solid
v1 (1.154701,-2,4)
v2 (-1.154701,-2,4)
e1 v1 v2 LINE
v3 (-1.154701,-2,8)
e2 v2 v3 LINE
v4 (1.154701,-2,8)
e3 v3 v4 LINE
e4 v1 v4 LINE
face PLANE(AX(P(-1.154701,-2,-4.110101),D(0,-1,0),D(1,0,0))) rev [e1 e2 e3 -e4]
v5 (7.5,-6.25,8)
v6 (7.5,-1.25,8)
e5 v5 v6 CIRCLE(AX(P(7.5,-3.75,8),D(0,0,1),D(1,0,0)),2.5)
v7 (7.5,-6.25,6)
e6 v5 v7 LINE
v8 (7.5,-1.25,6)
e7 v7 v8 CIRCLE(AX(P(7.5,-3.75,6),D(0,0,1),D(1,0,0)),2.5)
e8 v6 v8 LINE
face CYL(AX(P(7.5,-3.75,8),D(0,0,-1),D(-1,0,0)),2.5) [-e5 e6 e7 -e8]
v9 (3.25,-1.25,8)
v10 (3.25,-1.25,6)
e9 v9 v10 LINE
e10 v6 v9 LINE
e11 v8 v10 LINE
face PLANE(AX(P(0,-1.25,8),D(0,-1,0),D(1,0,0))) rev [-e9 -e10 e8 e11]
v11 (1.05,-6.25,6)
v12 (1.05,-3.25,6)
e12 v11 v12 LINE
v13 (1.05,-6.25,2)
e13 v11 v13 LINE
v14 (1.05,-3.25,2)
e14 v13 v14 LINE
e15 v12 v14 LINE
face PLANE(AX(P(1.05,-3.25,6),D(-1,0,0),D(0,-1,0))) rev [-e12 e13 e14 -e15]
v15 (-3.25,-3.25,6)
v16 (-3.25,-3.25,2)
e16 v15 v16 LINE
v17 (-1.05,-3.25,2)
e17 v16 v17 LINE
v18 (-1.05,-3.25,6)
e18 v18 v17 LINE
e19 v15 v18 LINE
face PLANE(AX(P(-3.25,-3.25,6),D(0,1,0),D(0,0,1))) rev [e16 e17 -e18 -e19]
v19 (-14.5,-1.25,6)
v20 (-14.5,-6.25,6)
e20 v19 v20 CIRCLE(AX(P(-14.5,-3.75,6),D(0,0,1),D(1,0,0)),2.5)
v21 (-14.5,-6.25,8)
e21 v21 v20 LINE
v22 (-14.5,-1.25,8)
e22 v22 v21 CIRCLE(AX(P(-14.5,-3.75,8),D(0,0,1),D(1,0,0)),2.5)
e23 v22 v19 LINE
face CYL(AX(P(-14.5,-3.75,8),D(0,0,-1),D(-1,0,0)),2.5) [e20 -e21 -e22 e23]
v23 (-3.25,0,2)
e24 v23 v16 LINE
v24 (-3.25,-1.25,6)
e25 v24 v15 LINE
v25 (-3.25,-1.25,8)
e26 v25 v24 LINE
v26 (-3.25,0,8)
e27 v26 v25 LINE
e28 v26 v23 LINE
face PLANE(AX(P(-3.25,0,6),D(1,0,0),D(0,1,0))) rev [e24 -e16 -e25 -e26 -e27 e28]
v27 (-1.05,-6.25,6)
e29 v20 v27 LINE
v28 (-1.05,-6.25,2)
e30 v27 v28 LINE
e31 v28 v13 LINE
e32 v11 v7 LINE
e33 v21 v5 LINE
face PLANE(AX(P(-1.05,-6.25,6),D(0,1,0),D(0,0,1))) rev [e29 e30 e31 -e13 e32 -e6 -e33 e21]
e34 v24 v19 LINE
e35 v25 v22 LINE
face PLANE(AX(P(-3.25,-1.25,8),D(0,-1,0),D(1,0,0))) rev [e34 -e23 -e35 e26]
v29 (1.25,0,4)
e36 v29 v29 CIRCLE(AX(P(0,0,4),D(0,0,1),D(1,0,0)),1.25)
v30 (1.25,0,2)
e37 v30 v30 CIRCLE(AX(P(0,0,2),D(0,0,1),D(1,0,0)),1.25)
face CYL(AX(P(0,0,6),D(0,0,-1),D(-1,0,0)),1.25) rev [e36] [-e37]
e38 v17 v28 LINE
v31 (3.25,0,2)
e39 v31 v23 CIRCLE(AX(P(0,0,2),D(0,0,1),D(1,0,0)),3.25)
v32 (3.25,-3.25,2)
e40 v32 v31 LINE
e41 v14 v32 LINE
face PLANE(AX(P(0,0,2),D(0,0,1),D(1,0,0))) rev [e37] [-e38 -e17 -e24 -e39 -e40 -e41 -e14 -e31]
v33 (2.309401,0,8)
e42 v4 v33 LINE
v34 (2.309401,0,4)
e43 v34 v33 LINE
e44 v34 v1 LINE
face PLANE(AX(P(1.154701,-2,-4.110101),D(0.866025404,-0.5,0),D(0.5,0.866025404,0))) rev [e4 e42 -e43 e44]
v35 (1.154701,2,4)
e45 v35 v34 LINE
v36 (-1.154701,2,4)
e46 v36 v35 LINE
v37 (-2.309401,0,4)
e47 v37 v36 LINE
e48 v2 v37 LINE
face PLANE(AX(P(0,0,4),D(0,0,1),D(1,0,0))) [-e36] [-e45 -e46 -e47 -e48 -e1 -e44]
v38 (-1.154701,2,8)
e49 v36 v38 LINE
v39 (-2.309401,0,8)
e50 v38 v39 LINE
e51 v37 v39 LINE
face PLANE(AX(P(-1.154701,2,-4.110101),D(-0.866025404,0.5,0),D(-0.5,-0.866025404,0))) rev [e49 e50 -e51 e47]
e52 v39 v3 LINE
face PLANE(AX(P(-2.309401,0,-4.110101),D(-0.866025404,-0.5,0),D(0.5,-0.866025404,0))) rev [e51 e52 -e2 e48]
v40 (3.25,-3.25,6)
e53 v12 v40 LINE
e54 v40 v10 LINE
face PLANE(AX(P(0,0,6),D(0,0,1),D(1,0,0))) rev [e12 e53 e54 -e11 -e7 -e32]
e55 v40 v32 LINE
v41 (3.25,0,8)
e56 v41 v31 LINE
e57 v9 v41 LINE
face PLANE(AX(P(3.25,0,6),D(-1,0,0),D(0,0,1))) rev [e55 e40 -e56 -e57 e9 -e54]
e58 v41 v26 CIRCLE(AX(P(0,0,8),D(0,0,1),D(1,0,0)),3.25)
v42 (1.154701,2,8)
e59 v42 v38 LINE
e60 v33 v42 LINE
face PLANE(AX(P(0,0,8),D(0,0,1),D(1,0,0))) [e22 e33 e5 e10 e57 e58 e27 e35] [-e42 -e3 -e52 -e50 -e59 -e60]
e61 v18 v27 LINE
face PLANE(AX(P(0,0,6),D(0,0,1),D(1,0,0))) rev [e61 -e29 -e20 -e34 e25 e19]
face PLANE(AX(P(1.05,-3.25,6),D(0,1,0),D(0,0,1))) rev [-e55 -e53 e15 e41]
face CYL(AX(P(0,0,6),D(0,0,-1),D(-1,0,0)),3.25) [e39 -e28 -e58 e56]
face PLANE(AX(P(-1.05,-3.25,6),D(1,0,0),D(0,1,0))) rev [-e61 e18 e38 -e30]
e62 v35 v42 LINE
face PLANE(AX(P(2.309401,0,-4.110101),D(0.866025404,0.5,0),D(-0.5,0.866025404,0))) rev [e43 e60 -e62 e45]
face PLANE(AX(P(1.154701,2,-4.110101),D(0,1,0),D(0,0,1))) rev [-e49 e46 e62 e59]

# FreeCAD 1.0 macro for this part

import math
import FreeCAD as App
import Part
import Sketcher
Q = App.Units.Quantity


def add_polygon(sketch, points):
    """Adds a closed chain of lines whose ends are joined by coincident constraints."""
    first, n = sketch.GeometryCount, len(points)
    for a, b in zip(points, points[1:] + points[:1]):
        sketch.addGeometry(Part.LineSegment(App.Vector(*a, 0), App.Vector(*b, 0)), False)
    for i in range(n):
        sketch.addConstraint(Sketcher.Constraint("Coincident", first + i, 2, first + (i + 1) % n, 1))

doc = App.newDocument("Part")
body = doc.addObject("PartDesign::Body", "Body")

sketch1 = body.newObject("Sketcher::SketchObject", "Sketch")
sketch1.AttachmentSupport = (doc.getObject("XY_Plane"), [""])
sketch1.MapMode = "FlatFace"
sketch1.addGeometry([
    Part.LineSegment(App.Vector(-3.2, -1.2, 0), App.Vector(-14.5, -1.2, 0)),
    Part.ArcOfCircle(Part.Circle(App.Vector(-14.5, -3.8, 0), App.Vector(0, 0, 1), 2.5), math.radians(90), math.radians(270)),
    Part.LineSegment(App.Vector(-14.5, -6.2, 0), App.Vector(7.5, -6.2, 0)),
    Part.ArcOfCircle(Part.Circle(App.Vector(7.5, -3.8, 0), App.Vector(0, 0, 1), 2.5), math.radians(-90), math.radians(90)),
    Part.LineSegment(App.Vector(7.5, -1.2, 0), App.Vector(3.2, -1.2, 0)),
    Part.LineSegment(App.Vector(3.2, -1.2, 0), App.Vector(3.2, 0, 0)),
    Part.ArcOfCircle(Part.Circle(App.Vector(0, 0, 0), App.Vector(0, 0, 1), 3.2), math.radians(0), math.radians(180)),
    Part.LineSegment(App.Vector(-3.2, 0, 0), App.Vector(-3.2, -1.2, 0)),
    Part.Circle(App.Vector(0, 0, 0), App.Vector(0, 0, 1), 1.2),
], False)
sketch1.addConstraint([
    Sketcher.Constraint("Tangent", 0, 2, 1, 1),
    Sketcher.Constraint("Tangent", 1, 2, 2, 1),
    Sketcher.Constraint("Tangent", 2, 2, 3, 1),
    Sketcher.Constraint("Tangent", 3, 2, 4, 1),
    Sketcher.Constraint("Coincident", 4, 2, 5, 1),
    Sketcher.Constraint("Tangent", 5, 2, 6, 1),
    Sketcher.Constraint("Tangent", 6, 2, 7, 1),
    Sketcher.Constraint("Coincident", 7, 2, 0, 1),
    Sketcher.Constraint("Horizontal", 0),
    Sketcher.Constraint("Horizontal", 2),
    Sketcher.Constraint("Horizontal", 4),
    Sketcher.Constraint("Vertical", 5),
    Sketcher.Constraint("Vertical", 7),
    Sketcher.Constraint("Coincident", 6, 3, -1, 1),
    Sketcher.Constraint("Coincident", 8, 3, -1, 1),
    Sketcher.Constraint("Equal", 1, 3),
    Sketcher.Constraint("Diameter", 8, Q("2.5 mm")),
    Sketcher.Constraint("Radius", 1, Q("2.5 mm")),
    Sketcher.Constraint("DistanceX", 2, 1, 2, 2, Q("22 mm")),
    Sketcher.Constraint("Radius", 6, Q("3.25 mm")),
    Sketcher.Constraint("DistanceX", 0, 2, 0, 1, Q("11.25 mm")),
    Sketcher.Constraint("DistanceY", 5, 1, 5, 2, Q("1.25 mm")),
])
pad1 = body.newObject("PartDesign::Pad", "Pad")
pad1.Profile = sketch1
pad1.Length = 2

sketch2 = body.newObject("Sketcher::SketchObject", "Sketch001")
sketch2.AttachmentSupport = (doc.getObject("XY_Plane"), [""])
sketch2.MapMode = "FlatFace"
sketch2.AttachmentOffset = App.Placement(App.Vector(0, 0, 2), App.Rotation())
sketch2.addGeometry(Part.LineSegment(App.Vector(-15, -6.2, 0), App.Vector(-15, -1.3, 0)), False)
sketch2.addGeometry(Part.ArcOfCircle(Part.Circle(App.Vector(-14.5, -3.8, 0), App.Vector(0, 0, 1), 2.5), math.radians(102), math.radians(258)), False)
add_polygon(sketch2, [(-3, -3.5), (-3, -6.2), (3, -6.2), (3, -3.5)])
sketch2.addGeometry(Part.LineSegment(App.Vector(8, -1.3, 0), App.Vector(8, -6.2, 0)), False)
sketch2.addGeometry(Part.ArcOfCircle(Part.Circle(App.Vector(7.5, -3.8, 0), App.Vector(0, 0, 1), 2.5), math.radians(-78), math.radians(78)), False)
sketch2.addConstraint([
    Sketcher.Constraint("Coincident", 0, 1, 1, 2),
    Sketcher.Constraint("Coincident", 1, 1, 0, 2),
    Sketcher.Constraint("Coincident", 6, 1, 7, 2),
    Sketcher.Constraint("Coincident", 7, 1, 6, 2),
    Sketcher.Constraint("Vertical", 0),
    Sketcher.Constraint("Vertical", 2),
    Sketcher.Constraint("Horizontal", 3),
    Sketcher.Constraint("Vertical", 4),
    Sketcher.Constraint("Horizontal", 5),
    Sketcher.Constraint("Vertical", 6),
    Sketcher.Constraint("Equal", 1, 7),
    Sketcher.Constraint("Horizontal", 1, 3, 7, 3),
    Sketcher.Constraint("Horizontal", 1, 1, 6, 1),
    Sketcher.Constraint("Radius", 1, Q("2.5 mm")),
    Sketcher.Constraint("DistanceX", 3, 1, 3, 2, Q("6 mm")),
    Sketcher.Constraint("DistanceY", 2, 2, 2, 1, Q("2.8 mm")),
    Sketcher.Constraint("DistanceX", 0, 1, -1, 1, Q("15 mm")),
    Sketcher.Constraint("DistanceX", 2, 2, -1, 1, Q("3 mm")),
    Sketcher.Constraint("DistanceX", -1, 1, 6, 1, Q("8 mm")),
    Sketcher.Constraint("DistanceX", 1, 3, 7, 3, Q("22 mm")),
    Sketcher.Constraint("DistanceY", 2, 2, 7, 3, Q("2.5 mm")),
    Sketcher.Constraint("DistanceY", 1, 3, -1, 1, Q("3.75 mm")),
])
pad2 = body.newObject("PartDesign::Pad", "Pad001")
pad2.Profile = sketch2
pad2.Length = 4
body2 = doc.addObject("PartDesign::Body", "Body001")

sketch3 = body2.newObject("Sketcher::SketchObject", "Sketch002")
sketch3.AttachmentSupport = (doc.getObject("XY_Plane001"), [""])
sketch3.MapMode = "FlatFace"
sketch3.AttachmentOffset = App.Placement(App.Vector(0, 0, 2), App.Rotation())
sketch3.addGeometry([
    Part.LineSegment(App.Vector(-3.2, 0, 0), App.Vector(-3.2, -3.2, 0)),
    Part.LineSegment(App.Vector(-3.2, -3.2, 0), App.Vector(-1.1, -3.2, 0)),
    Part.LineSegment(App.Vector(-1.1, -3.2, 0), App.Vector(-1.1, -6.2, 0)),
    Part.LineSegment(App.Vector(-1.1, -6.2, 0), App.Vector(1.1, -6.2, 0)),
    Part.LineSegment(App.Vector(1.1, -6.2, 0), App.Vector(1.1, -3.2, 0)),
    Part.LineSegment(App.Vector(1.1, -3.2, 0), App.Vector(3.2, -3.2, 0)),
    Part.LineSegment(App.Vector(3.2, -3.2, 0), App.Vector(3.2, 0, 0)),
    Part.ArcOfCircle(Part.Circle(App.Vector(0, 0, 0), App.Vector(0, 0, 1), 3.2), math.radians(0), math.radians(180)),
    Part.Circle(App.Vector(0, 0, 0), App.Vector(0, 0, 1), 1.2),
], False)
sketch3.addConstraint([
    Sketcher.Constraint("Coincident", 0, 2, 1, 1),
    Sketcher.Constraint("Coincident", 1, 2, 2, 1),
    Sketcher.Constraint("Coincident", 2, 2, 3, 1),
    Sketcher.Constraint("Coincident", 3, 2, 4, 1),
    Sketcher.Constraint("Coincident", 4, 2, 5, 1),
    Sketcher.Constraint("Coincident", 5, 2, 6, 1),
    Sketcher.Constraint("Tangent", 6, 2, 7, 1),
    Sketcher.Constraint("Tangent", 7, 2, 0, 1),
    Sketcher.Constraint("Vertical", 0),
    Sketcher.Constraint("Horizontal", 1),
    Sketcher.Constraint("Vertical", 2),
    Sketcher.Constraint("Horizontal", 3),
    Sketcher.Constraint("Vertical", 4),
    Sketcher.Constraint("Horizontal", 5),
    Sketcher.Constraint("Vertical", 6),
    Sketcher.Constraint("Coincident", 7, 3, -1, 1),
    Sketcher.Constraint("Coincident", 8, 3, -1, 1),
    Sketcher.Constraint("Symmetric", 1, 2, 4, 2, -2),
    Sketcher.Constraint("Diameter", 8, Q("2.5 mm")),
    Sketcher.Constraint("DistanceY", 2, 2, 2, 1, Q("3 mm")),
    Sketcher.Constraint("Radius", 7, Q("3.25 mm")),
    Sketcher.Constraint("DistanceX", 1, 1, 1, 2, Q("2.2 mm")),
    Sketcher.Constraint("DistanceY", 0, 2, 0, 1, Q("3.25 mm")),
])
pad3 = body2.newObject("PartDesign::Pad", "Pad002")
pad3.Profile = sketch3
pad3.Length = 4

sketch4 = body2.newObject("Sketcher::SketchObject", "Sketch003")
sketch4.AttachmentSupport = (doc.getObject("XY_Plane001"), [""])
sketch4.MapMode = "FlatFace"
sketch4.AttachmentOffset = App.Placement(App.Vector(0, 0, 6), App.Rotation())
sketch4.addGeometry([
    Part.LineSegment(App.Vector(7.5, -1.2, 0), App.Vector(3.2, -1.2, 0)),
    Part.LineSegment(App.Vector(3.2, -1.2, 0), App.Vector(3.2, 0, 0)),
    Part.ArcOfCircle(Part.Circle(App.Vector(0, 0, 0), App.Vector(0, 0, 1), 3.2), math.radians(0), math.radians(180)),
    Part.LineSegment(App.Vector(-3.2, 0, 0), App.Vector(-3.2, -1.2, 0)),
    Part.LineSegment(App.Vector(-3.2, -1.2, 0), App.Vector(-14.5, -1.2, 0)),
    Part.ArcOfCircle(Part.Circle(App.Vector(-14.5, -3.8, 0), App.Vector(0, 0, 1), 2.5), math.radians(90), math.radians(270)),
    Part.LineSegment(App.Vector(-14.5, -6.2, 0), App.Vector(7.5, -6.2, 0)),
    Part.ArcOfCircle(Part.Circle(App.Vector(7.5, -3.8, 0), App.Vector(0, 0, 1), 2.5), math.radians(-90), math.radians(90)),
], False)
sketch4.addConstraint([
    Sketcher.Constraint("Coincident", 0, 2, 1, 1),
    Sketcher.Constraint("Tangent", 1, 2, 2, 1),
    Sketcher.Constraint("Tangent", 2, 2, 3, 1),
    Sketcher.Constraint("Coincident", 3, 2, 4, 1),
    Sketcher.Constraint("Tangent", 4, 2, 5, 1),
    Sketcher.Constraint("Tangent", 5, 2, 6, 1),
    Sketcher.Constraint("Tangent", 6, 2, 7, 1),
    Sketcher.Constraint("Tangent", 7, 2, 0, 1),
    Sketcher.Constraint("Horizontal", 0),
    Sketcher.Constraint("Vertical", 1),
    Sketcher.Constraint("Vertical", 3),
    Sketcher.Constraint("Horizontal", 4),
    Sketcher.Constraint("Horizontal", 6),
    Sketcher.Constraint("Coincident", 2, 3, -1, 1),
    Sketcher.Constraint("Equal", 5, 7),
    Sketcher.Constraint("Radius", 5, Q("2.5 mm")),
    Sketcher.Constraint("DistanceX", 6, 1, 6, 2, Q("22 mm")),
    Sketcher.Constraint("Radius", 2, Q("3.25 mm")),
    Sketcher.Constraint("DistanceX", 0, 2, 0, 1, Q("4.25 mm")),
    Sketcher.Constraint("DistanceY", 1, 1, 1, 2, Q("1.25 mm")),
])
pad4 = body2.newObject("PartDesign::Pad", "Pad003")
pad4.Profile = sketch4
pad4.Length = 2

sketch5 = body2.newObject("Sketcher::SketchObject", "Sketch004")
sketch5.AttachmentSupport = (doc.getObject("XY_Plane001"), [""])
sketch5.MapMode = "FlatFace"
sketch5.AttachmentOffset = App.Placement(App.Vector(0, 0, 8), App.Rotation())
add_polygon(sketch5, [(1.2, 2), (-1.2, 2), (-2.3, 0), (-1.2, -2), (1.2, -2), (2.3, 0)])
sketch5.addConstraint([
    Sketcher.Constraint("Horizontal", 0),
    Sketcher.Constraint("Horizontal", 3),
    Sketcher.Constraint("Symmetric", 0, 2, 3, 2, -1, 1),
    Sketcher.Constraint("Symmetric", 1, 2, 4, 2, -1, 1),
    Sketcher.Constraint("PointOnObject", 1, 2, -1),
    Sketcher.Constraint("Parallel", 2, 5),
    Sketcher.Constraint("Vertical", 0, 2, 2, 2),
    Sketcher.Constraint("Angle", 1, Q("-120 deg")),
    Sketcher.Constraint("DistanceY", -1, 1, 0, 2, Q("2 mm")),
    Sketcher.Constraint("DistanceX", 0, 2, 0, 1, Q("2.309401 mm")),
])
pocket1 = body2.newObject("PartDesign::Pocket", "Pocket")
pocket1.Profile = sketch5
pocket1.Length = 4
body.Visibility = False

doc.recompute()
